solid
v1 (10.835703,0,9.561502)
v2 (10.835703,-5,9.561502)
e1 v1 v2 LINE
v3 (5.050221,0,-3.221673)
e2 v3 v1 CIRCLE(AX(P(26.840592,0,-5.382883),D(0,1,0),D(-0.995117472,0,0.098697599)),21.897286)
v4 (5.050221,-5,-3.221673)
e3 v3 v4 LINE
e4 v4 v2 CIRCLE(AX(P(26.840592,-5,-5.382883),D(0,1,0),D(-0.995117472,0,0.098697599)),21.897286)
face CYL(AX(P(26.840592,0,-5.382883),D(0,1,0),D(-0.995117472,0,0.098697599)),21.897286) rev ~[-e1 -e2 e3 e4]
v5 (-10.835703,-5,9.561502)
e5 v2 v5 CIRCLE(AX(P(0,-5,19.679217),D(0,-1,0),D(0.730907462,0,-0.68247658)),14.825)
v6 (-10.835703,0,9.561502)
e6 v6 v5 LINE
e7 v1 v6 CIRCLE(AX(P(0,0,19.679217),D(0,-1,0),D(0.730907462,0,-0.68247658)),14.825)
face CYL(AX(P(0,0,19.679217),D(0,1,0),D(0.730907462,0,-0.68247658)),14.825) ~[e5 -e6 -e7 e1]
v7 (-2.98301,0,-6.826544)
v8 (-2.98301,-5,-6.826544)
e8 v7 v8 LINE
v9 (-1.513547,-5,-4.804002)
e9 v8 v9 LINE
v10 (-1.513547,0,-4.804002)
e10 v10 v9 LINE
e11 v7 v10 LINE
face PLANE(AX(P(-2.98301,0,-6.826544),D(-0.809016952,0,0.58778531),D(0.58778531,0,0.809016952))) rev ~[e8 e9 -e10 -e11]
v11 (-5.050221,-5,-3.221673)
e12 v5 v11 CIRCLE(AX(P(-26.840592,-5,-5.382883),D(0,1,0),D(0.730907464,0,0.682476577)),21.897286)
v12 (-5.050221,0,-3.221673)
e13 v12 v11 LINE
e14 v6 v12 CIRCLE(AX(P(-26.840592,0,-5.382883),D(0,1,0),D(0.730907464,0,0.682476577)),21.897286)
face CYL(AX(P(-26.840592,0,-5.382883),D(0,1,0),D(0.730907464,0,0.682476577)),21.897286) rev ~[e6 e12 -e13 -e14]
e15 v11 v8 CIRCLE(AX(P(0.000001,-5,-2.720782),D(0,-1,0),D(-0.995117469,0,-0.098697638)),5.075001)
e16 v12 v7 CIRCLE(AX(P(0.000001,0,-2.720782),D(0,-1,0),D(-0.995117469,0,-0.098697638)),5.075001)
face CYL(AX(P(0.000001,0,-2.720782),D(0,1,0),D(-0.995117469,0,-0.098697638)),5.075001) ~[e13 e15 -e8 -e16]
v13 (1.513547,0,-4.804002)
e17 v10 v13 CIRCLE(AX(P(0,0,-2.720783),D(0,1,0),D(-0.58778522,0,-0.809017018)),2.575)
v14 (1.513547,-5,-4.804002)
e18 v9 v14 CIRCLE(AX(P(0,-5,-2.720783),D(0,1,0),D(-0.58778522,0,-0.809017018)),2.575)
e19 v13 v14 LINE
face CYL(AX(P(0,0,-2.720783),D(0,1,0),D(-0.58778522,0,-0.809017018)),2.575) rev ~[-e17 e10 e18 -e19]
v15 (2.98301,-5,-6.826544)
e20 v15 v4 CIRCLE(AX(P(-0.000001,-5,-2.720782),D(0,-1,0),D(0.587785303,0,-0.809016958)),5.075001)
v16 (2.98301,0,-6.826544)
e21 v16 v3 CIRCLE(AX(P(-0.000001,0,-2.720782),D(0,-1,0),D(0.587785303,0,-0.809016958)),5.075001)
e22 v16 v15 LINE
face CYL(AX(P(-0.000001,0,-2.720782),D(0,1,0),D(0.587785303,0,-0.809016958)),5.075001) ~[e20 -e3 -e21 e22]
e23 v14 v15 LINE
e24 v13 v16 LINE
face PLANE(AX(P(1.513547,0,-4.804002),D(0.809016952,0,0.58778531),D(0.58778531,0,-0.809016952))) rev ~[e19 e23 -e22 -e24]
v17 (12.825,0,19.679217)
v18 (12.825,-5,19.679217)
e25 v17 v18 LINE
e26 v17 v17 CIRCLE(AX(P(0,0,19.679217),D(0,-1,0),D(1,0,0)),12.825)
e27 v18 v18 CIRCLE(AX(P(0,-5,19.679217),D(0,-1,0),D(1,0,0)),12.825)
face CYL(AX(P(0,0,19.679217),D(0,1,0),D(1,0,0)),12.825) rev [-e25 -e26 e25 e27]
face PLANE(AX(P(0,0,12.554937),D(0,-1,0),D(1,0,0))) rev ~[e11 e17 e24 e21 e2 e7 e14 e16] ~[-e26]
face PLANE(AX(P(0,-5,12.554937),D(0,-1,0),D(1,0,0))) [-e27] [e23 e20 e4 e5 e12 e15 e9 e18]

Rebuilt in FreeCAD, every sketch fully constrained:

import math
import FreeCAD as App
import Part
import Sketcher
Q = App.Units.Quantity

doc = App.newDocument("Part")
body = doc.addObject("PartDesign::Body", "Body")

sketch1 = body.newObject("Sketcher::SketchObject", "Sketch")
sketch1.AttachmentSupport = (doc.getObject("XZ_Plane"), [""])
sketch1.MapMode = "FlatFace"
sketch1.addGeometry(Part.ArcOfCircle(Part.Circle(App.Vector(0, -2.720783, 0), App.Vector(0, 0, 1), 2.575), math.radians(-54.000002), math.radians(234.000002)), False)
sketch1.addGeometry(Part.LineSegment(App.Vector(1.513547, -4.804002, 0), App.Vector(2.98301, -6.826544, 0)), False)
sketch1.addGeometry(Part.ArcOfCircle(Part.Circle(App.Vector(-0.000001, -2.720782, 0), App.Vector(0, 0, 1), 5.075001), math.radians(-53.999996), math.radians(-5.66418)), False)
sketch1.addGeometry(Part.ArcOfCircle(Part.Circle(App.Vector(26.840592, -5.382883, 0), App.Vector(0, 0, 1), 21.897286), math.radians(136.962524), math.radians(174.335823)), False)
sketch1.addGeometry(Part.ArcOfCircle(Part.Circle(App.Vector(0, 19.679217, 0), App.Vector(0, 0, 1), 14.825), math.radians(-43.037476), math.radians(223.037476)), False)
sketch1.addGeometry(Part.ArcOfCircle(Part.Circle(App.Vector(-26.840592, -5.382883, 0), App.Vector(0, 0, 1), 21.897286), math.radians(5.664177), math.radians(43.037476)), False)
sketch1.addGeometry(Part.ArcOfCircle(Part.Circle(App.Vector(0.000001, -2.720782, 0), App.Vector(0, 0, 1), 5.075001), math.radians(-174.33582), math.radians(-126.000004)), False)
sketch1.addGeometry(Part.LineSegment(App.Vector(-2.98301, -6.826544, 0), App.Vector(-1.513547, -4.804002, 0)), False)
sketch1.addGeometry(Part.Circle(App.Vector(0, 19.679217, 0), App.Vector(0, 0, 1), 12.825), False)
sketch1.addConstraint(Sketcher.Constraint("Coincident", 0, 1, 1, 1))
sketch1.addConstraint(Sketcher.Constraint("Coincident", 1, 2, 2, 1))
sketch1.addConstraint(Sketcher.Constraint("Tangent", 2, 2, 3, 2))
sketch1.addConstraint(Sketcher.Constraint("Tangent", 3, 1, 4, 1))
sketch1.addConstraint(Sketcher.Constraint("Tangent", 4, 2, 5, 2))
sketch1.addConstraint(Sketcher.Constraint("Tangent", 5, 1, 6, 1))
sketch1.addConstraint(Sketcher.Constraint("Coincident", 6, 2, 7, 1))
sketch1.addConstraint(Sketcher.Constraint("Coincident", 7, 2, 0, 2))
sketch1.addConstraint(Sketcher.Constraint("Coincident", 2, 3, 0, 3))
sketch1.addConstraint(Sketcher.Constraint("Coincident", 6, 3, 0, 3))
sketch1.addConstraint(Sketcher.Constraint("Coincident", 8, 3, 4, 3))
sketch1.addConstraint(Sketcher.Constraint("Equal", 3, 5))
sketch1.addConstraint(Sketcher.Constraint("Equal", 2, 6))
sketch1.addConstraint(Sketcher.Constraint("Symmetric", 3, 3, 5, 3, -2))
sketch1.addConstraint(Sketcher.Constraint("Horizontal", 1, 2, 6, 2))
sketch1.addConstraint(Sketcher.Constraint("Horizontal", 0, 1, 7, 2))
sketch1.addConstraint(Sketcher.Constraint("Diameter", 8, 25.65))
sketch1.addConstraint(Sketcher.Constraint("Angle", 1, Q("-53.999996 deg")))
sketch1.addConstraint(Sketcher.Constraint("Radius", 0, 2.575))
sketch1.addConstraint(Sketcher.Constraint("Radius", 2, 5.075001))
sketch1.addConstraint(Sketcher.Constraint("Radius", 4, 14.825))
sketch1.addConstraint(Sketcher.Constraint("DistanceY", 2, 3, 4, 3, 22.4))
sketch1.addConstraint(Sketcher.Constraint("DistanceY", 0, 1, -1, 1, 4.804002))
sketch1.addConstraint(Sketcher.Constraint("Radius", 3, 21.897286))
sketch1.addConstraint(Sketcher.Constraint("DistanceX", -1, 1, 1, 2, 2.98301))
pad1 = body.newObject("PartDesign::Pad", "Pad")
pad1.Profile = sketch1
pad1.Length = 5

doc.recompute()
